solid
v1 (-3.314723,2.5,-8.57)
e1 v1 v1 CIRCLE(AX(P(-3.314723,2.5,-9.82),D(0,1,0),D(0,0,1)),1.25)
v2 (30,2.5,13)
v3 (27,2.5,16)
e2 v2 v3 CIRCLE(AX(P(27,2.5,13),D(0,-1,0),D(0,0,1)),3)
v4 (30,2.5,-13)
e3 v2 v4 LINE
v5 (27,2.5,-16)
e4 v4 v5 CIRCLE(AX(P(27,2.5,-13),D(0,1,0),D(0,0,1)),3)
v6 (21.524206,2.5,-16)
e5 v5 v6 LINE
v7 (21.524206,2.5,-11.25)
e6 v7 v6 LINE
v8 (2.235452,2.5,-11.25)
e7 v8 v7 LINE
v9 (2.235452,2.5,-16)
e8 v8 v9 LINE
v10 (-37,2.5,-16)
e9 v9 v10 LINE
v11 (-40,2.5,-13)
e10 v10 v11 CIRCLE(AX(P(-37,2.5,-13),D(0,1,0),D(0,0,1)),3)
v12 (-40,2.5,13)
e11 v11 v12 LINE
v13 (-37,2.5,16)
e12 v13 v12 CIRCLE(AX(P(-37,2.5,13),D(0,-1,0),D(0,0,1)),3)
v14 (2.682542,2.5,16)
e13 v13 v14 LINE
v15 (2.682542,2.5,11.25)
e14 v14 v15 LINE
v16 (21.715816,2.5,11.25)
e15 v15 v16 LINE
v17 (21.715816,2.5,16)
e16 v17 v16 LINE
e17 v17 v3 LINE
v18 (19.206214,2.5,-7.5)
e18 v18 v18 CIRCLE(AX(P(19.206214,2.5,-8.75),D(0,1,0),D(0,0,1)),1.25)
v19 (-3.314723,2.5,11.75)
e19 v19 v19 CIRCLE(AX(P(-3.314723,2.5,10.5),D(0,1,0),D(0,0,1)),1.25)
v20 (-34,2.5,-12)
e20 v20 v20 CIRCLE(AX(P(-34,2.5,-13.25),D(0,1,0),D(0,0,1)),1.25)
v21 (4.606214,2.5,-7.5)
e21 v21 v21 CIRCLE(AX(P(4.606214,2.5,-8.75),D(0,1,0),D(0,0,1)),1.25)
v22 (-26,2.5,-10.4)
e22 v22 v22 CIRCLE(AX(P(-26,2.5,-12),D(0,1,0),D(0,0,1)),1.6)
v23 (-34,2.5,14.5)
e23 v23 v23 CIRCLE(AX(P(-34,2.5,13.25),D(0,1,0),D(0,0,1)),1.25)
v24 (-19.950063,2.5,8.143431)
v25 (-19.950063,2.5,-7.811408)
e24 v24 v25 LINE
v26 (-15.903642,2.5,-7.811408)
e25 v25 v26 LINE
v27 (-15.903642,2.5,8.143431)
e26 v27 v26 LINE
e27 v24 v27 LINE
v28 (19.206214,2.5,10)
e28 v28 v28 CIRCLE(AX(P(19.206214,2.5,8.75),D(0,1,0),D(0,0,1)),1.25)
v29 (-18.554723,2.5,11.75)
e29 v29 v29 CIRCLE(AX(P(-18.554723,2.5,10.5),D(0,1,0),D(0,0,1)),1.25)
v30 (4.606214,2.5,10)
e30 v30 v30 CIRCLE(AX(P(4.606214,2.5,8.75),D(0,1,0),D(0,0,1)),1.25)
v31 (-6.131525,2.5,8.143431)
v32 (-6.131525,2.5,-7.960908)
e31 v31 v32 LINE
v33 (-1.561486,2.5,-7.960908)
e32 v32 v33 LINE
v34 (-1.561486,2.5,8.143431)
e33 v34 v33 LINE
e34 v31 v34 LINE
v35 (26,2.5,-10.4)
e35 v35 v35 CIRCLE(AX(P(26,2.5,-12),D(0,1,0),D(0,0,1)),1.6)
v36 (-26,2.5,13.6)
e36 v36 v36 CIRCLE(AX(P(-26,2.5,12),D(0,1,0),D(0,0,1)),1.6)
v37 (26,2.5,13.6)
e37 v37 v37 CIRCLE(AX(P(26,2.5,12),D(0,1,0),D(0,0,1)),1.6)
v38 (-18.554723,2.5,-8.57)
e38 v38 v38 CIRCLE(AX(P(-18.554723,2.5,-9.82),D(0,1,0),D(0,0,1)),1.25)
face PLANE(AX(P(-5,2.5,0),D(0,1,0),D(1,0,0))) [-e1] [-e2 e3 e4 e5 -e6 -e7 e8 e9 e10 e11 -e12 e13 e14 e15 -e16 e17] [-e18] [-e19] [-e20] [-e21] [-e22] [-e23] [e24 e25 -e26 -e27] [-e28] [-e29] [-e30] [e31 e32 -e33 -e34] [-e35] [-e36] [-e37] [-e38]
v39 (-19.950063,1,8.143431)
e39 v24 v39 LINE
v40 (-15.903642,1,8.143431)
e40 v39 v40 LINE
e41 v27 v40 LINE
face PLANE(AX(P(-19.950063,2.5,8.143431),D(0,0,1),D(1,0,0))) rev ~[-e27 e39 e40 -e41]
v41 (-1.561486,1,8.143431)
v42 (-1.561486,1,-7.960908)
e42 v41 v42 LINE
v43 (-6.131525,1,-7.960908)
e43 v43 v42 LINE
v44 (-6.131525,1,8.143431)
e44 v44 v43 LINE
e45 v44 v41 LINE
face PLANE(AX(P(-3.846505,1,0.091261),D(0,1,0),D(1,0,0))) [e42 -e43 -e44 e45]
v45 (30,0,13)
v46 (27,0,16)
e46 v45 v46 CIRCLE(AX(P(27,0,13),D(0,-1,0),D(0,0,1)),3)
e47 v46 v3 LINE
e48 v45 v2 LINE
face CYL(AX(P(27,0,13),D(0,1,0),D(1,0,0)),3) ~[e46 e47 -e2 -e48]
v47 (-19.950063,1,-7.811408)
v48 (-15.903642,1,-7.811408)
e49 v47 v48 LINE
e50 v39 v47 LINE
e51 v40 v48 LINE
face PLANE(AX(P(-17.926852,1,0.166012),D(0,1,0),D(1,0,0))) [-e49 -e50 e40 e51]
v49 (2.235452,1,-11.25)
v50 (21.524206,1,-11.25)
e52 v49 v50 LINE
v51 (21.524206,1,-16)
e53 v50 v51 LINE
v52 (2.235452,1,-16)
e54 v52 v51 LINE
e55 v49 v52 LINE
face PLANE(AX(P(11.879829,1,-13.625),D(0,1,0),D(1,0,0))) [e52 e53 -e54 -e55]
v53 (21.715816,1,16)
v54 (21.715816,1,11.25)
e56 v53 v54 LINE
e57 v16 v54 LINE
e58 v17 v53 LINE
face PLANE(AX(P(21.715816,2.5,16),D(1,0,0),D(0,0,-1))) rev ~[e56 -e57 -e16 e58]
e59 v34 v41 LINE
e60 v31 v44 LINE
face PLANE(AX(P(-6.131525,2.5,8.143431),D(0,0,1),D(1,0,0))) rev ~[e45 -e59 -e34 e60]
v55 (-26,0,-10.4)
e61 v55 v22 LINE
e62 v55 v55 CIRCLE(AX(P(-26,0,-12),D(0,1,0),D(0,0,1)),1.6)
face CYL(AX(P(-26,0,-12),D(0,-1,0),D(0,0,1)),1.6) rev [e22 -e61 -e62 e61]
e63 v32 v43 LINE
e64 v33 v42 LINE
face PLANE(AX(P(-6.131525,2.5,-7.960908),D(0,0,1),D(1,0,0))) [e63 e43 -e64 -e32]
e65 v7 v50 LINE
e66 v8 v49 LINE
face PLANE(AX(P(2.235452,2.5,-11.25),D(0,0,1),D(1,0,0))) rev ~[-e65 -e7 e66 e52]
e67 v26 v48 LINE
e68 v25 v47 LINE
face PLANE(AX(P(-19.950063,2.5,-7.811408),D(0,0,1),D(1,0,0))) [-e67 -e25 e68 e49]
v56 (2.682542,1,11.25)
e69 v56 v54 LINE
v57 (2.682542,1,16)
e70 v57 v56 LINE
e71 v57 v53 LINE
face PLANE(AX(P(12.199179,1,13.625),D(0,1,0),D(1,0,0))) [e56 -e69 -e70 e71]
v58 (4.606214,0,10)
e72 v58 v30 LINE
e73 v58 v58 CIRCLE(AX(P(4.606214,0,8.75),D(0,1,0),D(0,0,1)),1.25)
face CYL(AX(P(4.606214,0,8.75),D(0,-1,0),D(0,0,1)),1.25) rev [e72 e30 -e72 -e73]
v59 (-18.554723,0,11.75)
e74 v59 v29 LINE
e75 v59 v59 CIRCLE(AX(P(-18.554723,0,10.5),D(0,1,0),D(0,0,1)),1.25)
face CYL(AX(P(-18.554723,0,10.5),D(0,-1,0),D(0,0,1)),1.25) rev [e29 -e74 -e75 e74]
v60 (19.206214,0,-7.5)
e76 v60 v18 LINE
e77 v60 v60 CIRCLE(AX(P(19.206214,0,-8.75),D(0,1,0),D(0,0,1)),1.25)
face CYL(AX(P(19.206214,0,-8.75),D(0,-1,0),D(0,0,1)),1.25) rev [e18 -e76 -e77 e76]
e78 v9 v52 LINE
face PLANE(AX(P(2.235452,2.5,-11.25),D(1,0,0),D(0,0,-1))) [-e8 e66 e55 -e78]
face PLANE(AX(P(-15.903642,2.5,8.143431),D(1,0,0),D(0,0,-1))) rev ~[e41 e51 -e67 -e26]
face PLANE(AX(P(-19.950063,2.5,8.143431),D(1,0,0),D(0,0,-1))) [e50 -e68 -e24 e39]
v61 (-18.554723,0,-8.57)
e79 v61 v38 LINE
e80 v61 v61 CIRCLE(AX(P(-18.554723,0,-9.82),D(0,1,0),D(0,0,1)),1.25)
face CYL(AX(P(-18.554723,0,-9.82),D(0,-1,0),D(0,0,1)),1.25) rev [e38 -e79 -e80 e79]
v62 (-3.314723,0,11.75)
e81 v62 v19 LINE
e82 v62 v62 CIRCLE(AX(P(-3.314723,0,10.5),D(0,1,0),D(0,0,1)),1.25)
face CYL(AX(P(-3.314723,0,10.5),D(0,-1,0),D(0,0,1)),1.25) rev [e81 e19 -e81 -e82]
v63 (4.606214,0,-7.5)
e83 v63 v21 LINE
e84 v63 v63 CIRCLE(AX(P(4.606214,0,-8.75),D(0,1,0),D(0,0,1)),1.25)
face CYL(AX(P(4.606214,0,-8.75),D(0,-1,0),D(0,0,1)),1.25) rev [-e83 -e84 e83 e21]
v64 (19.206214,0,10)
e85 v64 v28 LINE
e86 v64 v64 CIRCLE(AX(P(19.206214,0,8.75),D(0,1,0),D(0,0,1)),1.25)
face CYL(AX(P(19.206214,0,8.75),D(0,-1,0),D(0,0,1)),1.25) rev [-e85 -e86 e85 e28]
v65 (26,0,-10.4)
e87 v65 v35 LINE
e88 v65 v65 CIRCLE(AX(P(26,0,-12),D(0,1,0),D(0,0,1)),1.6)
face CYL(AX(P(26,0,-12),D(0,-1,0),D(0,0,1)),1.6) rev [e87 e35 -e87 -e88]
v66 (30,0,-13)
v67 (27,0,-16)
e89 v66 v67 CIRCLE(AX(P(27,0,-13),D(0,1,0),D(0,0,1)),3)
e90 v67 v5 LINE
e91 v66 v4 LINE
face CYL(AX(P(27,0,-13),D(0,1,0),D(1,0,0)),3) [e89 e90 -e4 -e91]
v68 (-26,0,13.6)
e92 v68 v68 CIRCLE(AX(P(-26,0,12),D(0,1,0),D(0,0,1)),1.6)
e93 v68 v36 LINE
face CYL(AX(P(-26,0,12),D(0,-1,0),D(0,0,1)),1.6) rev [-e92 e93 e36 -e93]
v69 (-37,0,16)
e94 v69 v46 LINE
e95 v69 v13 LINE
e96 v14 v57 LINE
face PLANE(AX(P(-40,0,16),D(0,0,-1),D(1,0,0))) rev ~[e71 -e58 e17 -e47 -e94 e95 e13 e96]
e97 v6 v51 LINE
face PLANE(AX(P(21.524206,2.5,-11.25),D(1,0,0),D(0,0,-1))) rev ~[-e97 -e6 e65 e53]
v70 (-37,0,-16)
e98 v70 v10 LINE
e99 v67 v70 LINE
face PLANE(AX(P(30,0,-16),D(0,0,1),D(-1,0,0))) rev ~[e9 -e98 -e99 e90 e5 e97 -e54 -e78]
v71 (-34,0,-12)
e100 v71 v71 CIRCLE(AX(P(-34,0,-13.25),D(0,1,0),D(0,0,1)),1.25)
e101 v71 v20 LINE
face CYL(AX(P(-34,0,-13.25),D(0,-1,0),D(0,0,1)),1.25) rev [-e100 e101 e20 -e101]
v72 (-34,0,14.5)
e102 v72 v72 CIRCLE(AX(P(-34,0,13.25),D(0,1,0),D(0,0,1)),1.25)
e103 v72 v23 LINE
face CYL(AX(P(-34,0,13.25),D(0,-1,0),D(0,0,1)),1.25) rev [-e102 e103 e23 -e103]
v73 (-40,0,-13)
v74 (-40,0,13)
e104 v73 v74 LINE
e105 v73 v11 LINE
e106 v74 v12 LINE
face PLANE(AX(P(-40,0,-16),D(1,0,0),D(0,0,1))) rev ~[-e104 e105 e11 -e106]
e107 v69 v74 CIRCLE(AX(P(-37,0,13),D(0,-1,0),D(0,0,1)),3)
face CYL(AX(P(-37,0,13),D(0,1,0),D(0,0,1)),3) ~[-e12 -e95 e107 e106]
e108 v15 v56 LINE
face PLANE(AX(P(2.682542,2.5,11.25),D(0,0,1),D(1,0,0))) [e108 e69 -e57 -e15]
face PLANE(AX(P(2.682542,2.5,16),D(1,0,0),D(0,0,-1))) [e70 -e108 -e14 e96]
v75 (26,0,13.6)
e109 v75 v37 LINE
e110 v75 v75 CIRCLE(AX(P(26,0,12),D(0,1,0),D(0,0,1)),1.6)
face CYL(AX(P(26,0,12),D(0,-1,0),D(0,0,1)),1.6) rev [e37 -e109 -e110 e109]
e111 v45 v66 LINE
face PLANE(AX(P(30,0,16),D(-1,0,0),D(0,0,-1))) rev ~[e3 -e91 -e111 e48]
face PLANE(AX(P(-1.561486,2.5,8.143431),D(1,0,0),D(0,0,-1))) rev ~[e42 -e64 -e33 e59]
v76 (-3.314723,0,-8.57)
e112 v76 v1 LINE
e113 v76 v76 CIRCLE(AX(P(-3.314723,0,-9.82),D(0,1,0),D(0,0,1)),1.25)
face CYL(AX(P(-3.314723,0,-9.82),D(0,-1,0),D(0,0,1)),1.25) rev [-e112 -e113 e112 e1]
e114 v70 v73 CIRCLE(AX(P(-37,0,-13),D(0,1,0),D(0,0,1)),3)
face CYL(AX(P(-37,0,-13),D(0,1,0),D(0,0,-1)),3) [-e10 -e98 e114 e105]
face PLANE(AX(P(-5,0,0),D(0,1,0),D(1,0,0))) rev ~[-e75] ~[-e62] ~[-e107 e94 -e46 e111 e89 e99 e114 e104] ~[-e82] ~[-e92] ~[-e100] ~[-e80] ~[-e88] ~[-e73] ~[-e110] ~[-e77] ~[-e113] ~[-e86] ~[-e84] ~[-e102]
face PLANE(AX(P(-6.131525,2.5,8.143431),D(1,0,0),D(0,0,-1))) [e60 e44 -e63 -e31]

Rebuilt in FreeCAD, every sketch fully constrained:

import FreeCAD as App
import Part
import Sketcher
Q = App.Units.Quantity


def edges_at(feature, points):
    """Names of the edges that pass closest to the given points."""
    edges = feature.Shape.Edges
    near = lambda p: min(range(len(edges)), key=lambda i: edges[i].distToShape(Part.Vertex(*p))[0])
    return sorted({f"Edge{near(p) + 1}" for p in points})


def add_polygon(sketch, points):
    """Adds a closed chain of lines whose ends are joined by coincident constraints."""
    first, n = sketch.GeometryCount, len(points)
    for a, b in zip(points, points[1:] + points[:1]):
        sketch.addGeometry(Part.LineSegment(App.Vector(*a, 0), App.Vector(*b, 0)), False)
    for i in range(n):
        sketch.addConstraint(Sketcher.Constraint("Coincident", first + i, 2, first + (i + 1) % n, 1))

doc = App.newDocument("Part")
body = doc.addObject("PartDesign::Body", "Body")

sketch1 = body.newObject("Sketcher::SketchObject", "Sketch")
sketch1.AttachmentSupport = (doc.getObject("XZ_Plane"), [""])
sketch1.MapMode = "FlatFace"
add_polygon(sketch1, [(30, 16), (30, -16), (-40, -16), (-40, 16)])
sketch1.addGeometry(Part.Circle(App.Vector(-34, 13.2, 0), App.Vector(0, 0, 1), 1.2), False)
sketch1.addGeometry(Part.Circle(App.Vector(-26, 12, 0), App.Vector(0, 0, 1), 1.6), False)
sketch1.addGeometry(Part.Circle(App.Vector(-18.6, 10.5, 0), App.Vector(0, 0, 1), 1.2), False)
sketch1.addGeometry(Part.Circle(App.Vector(-3.3, 10.5, 0), App.Vector(0, 0, 1), 1.2), False)
sketch1.addGeometry(Part.Circle(App.Vector(4.6, 8.8, 0), App.Vector(0, 0, 1), 1.2), False)
sketch1.addGeometry(Part.Circle(App.Vector(26, 12, 0), App.Vector(0, 0, 1), 1.6), False)
sketch1.addGeometry(Part.Circle(App.Vector(19.2, 8.8, 0), App.Vector(0, 0, 1), 1.2), False)
sketch1.addGeometry(Part.Circle(App.Vector(-34, -13.2, 0), App.Vector(0, 0, 1), 1.2), False)
sketch1.addGeometry(Part.Circle(App.Vector(-26, -12, 0), App.Vector(0, 0, 1), 1.6), False)
sketch1.addGeometry(Part.Circle(App.Vector(-18.6, -9.8, 0), App.Vector(0, 0, 1), 1.2), False)
sketch1.addGeometry(Part.Circle(App.Vector(-3.3, -9.8, 0), App.Vector(0, 0, 1), 1.2), False)
sketch1.addGeometry(Part.Circle(App.Vector(4.6, -8.8, 0), App.Vector(0, 0, 1), 1.2), False)
sketch1.addGeometry(Part.Circle(App.Vector(19.2, -8.8, 0), App.Vector(0, 0, 1), 1.2), False)
sketch1.addGeometry(Part.Circle(App.Vector(26, -12, 0), App.Vector(0, 0, 1), 1.6), False)
sketch1.addConstraint(Sketcher.Constraint("Vertical", 0))
sketch1.addConstraint(Sketcher.Constraint("Horizontal", 1))
sketch1.addConstraint(Sketcher.Constraint("Vertical", 2))
sketch1.addConstraint(Sketcher.Constraint("Horizontal", 3))
sketch1.addConstraint(Sketcher.Constraint("Equal", 4, 6))
sketch1.addConstraint(Sketcher.Constraint("Equal", 6, 7))
sketch1.addConstraint(Sketcher.Constraint("Equal", 7, 8))
sketch1.addConstraint(Sketcher.Constraint("Equal", 5, 9))
sketch1.addConstraint(Sketcher.Constraint("Equal", 8, 10))
sketch1.addConstraint(Sketcher.Constraint("Equal", 10, 11))
sketch1.addConstraint(Sketcher.Constraint("Equal", 9, 12))
sketch1.addConstraint(Sketcher.Constraint("Equal", 11, 13))
sketch1.addConstraint(Sketcher.Constraint("Equal", 13, 14))
sketch1.addConstraint(Sketcher.Constraint("Equal", 14, 15))
sketch1.addConstraint(Sketcher.Constraint("Equal", 15, 16))
sketch1.addConstraint(Sketcher.Constraint("Equal", 12, 17))
sketch1.addConstraint(Sketcher.Constraint("Symmetric", 9, 3, 12, 3, -1, 1))
sketch1.addConstraint(Sketcher.Constraint("Symmetric", 5, 3, 17, 3, -1, 1))
sketch1.addConstraint(Sketcher.Constraint("Symmetric", 5, 3, 9, 3, -2))
sketch1.addConstraint(Sketcher.Constraint("Symmetric", 4, 3, 11, 3, -1))
sketch1.addConstraint(Sketcher.Constraint("Symmetric", 8, 3, 15, 3, -1))
sketch1.addConstraint(Sketcher.Constraint("Symmetric", 10, 3, 16, 3, -1))
sketch1.addConstraint(Sketcher.Constraint("Horizontal", 6, 3, 7, 3))
sketch1.addConstraint(Sketcher.Constraint("Horizontal", 8, 3, 10, 3))
sketch1.addConstraint(Sketcher.Constraint("Horizontal", 13, 3, 14, 3))
sketch1.addConstraint(Sketcher.Constraint("Vertical", 6, 3, 13, 3))
sketch1.addConstraint(Sketcher.Constraint("Vertical", 7, 3, 14, 3))
sketch1.addConstraint(Sketcher.Constraint("Diameter", 4, Q("2.5 mm")))
sketch1.addConstraint(Sketcher.Constraint("Diameter", 5, Q("3.2 mm")))
sketch1.addConstraint(Sketcher.Constraint("DistanceX", 1, 2, 1, 1, Q("70 mm")))
sketch1.addConstraint(Sketcher.Constraint("DistanceY", 0, 2, 0, 1, Q("32 mm")))
sketch1.addConstraint(Sketcher.Constraint("DistanceX", 4, 3, -1, 1, Q("34 mm")))
sketch1.addConstraint(Sketcher.Constraint("DistanceX", 5, 3, -1, 1, Q("26 mm")))
sketch1.addConstraint(Sketcher.Constraint("DistanceY", -1, 1, 5, 3, Q("12 mm")))
sketch1.addConstraint(Sketcher.Constraint("DistanceX", -1, 1, 0, 2, Q("30 mm")))
sketch1.addConstraint(Sketcher.Constraint("DistanceY", 0, 2, -1, 1, Q("16 mm")))
sketch1.addConstraint(Sketcher.Constraint("DistanceY", 11, 3, 8, 3, Q("22 mm")))
sketch1.addConstraint(Sketcher.Constraint("DistanceY", -1, 1, 6, 3, Q("10.5 mm")))
sketch1.addConstraint(Sketcher.Constraint("DistanceY", 8, 3, 4, 3, Q("4.5 mm")))
sketch1.addConstraint(Sketcher.Constraint("DistanceX", 8, 3, 10, 3, Q("14.6 mm")))
sketch1.addConstraint(Sketcher.Constraint("DistanceY", 13, 3, -1, 1, Q("9.82 mm")))
sketch1.addConstraint(Sketcher.Constraint("DistanceX", 6, 3, 7, 3, Q("15.24 mm")))
sketch1.addConstraint(Sketcher.Constraint("DistanceX", 6, 3, -1, 1, Q("18.554723 mm")))
sketch1.addConstraint(Sketcher.Constraint("DistanceX", -1, 1, 8, 3, Q("4.606214 mm")))
pad1 = body.newObject("PartDesign::Pad", "Pad")
pad1.Profile = sketch1
pad1.Length = 2.5
pad1.Reversed = True

sketch2 = body.newObject("Sketcher::SketchObject", "Sketch001")
sketch2.AttachmentSupport = (doc.getObject("XZ_Plane"), [""])
sketch2.MapMode = "FlatFace"
sketch2.AttachmentOffset = App.Placement(App.Vector(0, 0, -2.5), App.Rotation())
add_polygon(sketch2, [(-20, -7.8), (-20, 8.1), (-15.9, 8.1), (-15.9, -7.8)])
add_polygon(sketch2, [(-6.1, -8), (-6.1, 8.1), (-1.6, 8.1), (-1.6, -8)])
add_polygon(sketch2, [(2.2, -16), (2.2, -11.2), (21.5, -11.2), (21.5, -16)])
add_polygon(sketch2, [(2.7, 11.2), (2.7, 16), (21.7, 16), (21.7, 11.2)])
sketch2.addConstraint(Sketcher.Constraint("Vertical", 0))
sketch2.addConstraint(Sketcher.Constraint("Horizontal", 1))
sketch2.addConstraint(Sketcher.Constraint("Vertical", 2))
sketch2.addConstraint(Sketcher.Constraint("Horizontal", 3))
sketch2.addConstraint(Sketcher.Constraint("Vertical", 4))
sketch2.addConstraint(Sketcher.Constraint("Horizontal", 5))
sketch2.addConstraint(Sketcher.Constraint("Vertical", 6))
sketch2.addConstraint(Sketcher.Constraint("Horizontal", 7))
sketch2.addConstraint(Sketcher.Constraint("Vertical", 8))
sketch2.addConstraint(Sketcher.Constraint("Horizontal", 9))
sketch2.addConstraint(Sketcher.Constraint("Vertical", 10))
sketch2.addConstraint(Sketcher.Constraint("Horizontal", 11))
sketch2.addConstraint(Sketcher.Constraint("Vertical", 12))
sketch2.addConstraint(Sketcher.Constraint("Horizontal", 13))
sketch2.addConstraint(Sketcher.Constraint("Vertical", 14))
sketch2.addConstraint(Sketcher.Constraint("Horizontal", 15))
sketch2.addConstraint(Sketcher.Constraint("Horizontal", 1, 2, 4, 2))
sketch2.addConstraint(Sketcher.Constraint("Equal", 10, 12))
sketch2.addConstraint(Sketcher.Constraint("DistanceY", 10, 2, -1, 1, Q("16 mm")))
sketch2.addConstraint(Sketcher.Constraint("DistanceY", -1, 1, 12, 2, Q("16 mm")))
sketch2.addConstraint(Sketcher.Constraint("DistanceY", 8, 1, 8, 2, Q("4.75 mm")))
sketch2.addConstraint(Sketcher.Constraint("DistanceX", 1, 1, 1, 2, Q("4.046421 mm")))
sketch2.addConstraint(Sketcher.Constraint("DistanceX", 5, 1, 5, 2, Q("4.570039 mm")))
sketch2.addConstraint(Sketcher.Constraint("DistanceY", 0, 1, 0, 2, Q("15.954839 mm")))
sketch2.addConstraint(Sketcher.Constraint("DistanceY", 4, 1, 4, 2, Q("16.104339 mm")))
sketch2.addConstraint(Sketcher.Constraint("DistanceX", 5, 2, 13, 2, Q("23.277302 mm")))
sketch2.addConstraint(Sketcher.Constraint("DistanceX", 9, 1, 9, 2, Q("19.288754 mm")))
sketch2.addConstraint(Sketcher.Constraint("DistanceX", 13, 1, 13, 2, Q("19.033274 mm")))
sketch2.addConstraint(Sketcher.Constraint("DistanceY", -1, 1, 0, 2, Q("8.143431 mm")))
sketch2.addConstraint(Sketcher.Constraint("DistanceX", 1, 2, -1, 1, Q("15.903642 mm")))
sketch2.addConstraint(Sketcher.Constraint("DistanceX", -1, 1, 8, 2, Q("2.235452 mm")))
sketch2.addConstraint(Sketcher.Constraint("DistanceX", -1, 1, 12, 2, Q("2.682542 mm")))
pocket1 = body.newObject("PartDesign::Pocket", "Pocket")
pocket1.Profile = sketch2
pocket1.Length = 1.5
pocket1.Reversed = True
doc.recompute()

fillet = body.newObject("PartDesign::Fillet", "Fillet")
fillet.Base = (pocket1, edges_at(pocket1, [
    (30, 1.25, 16),
    (-40, 1.25, 16),
    (-40, 1.25, -16),
    (30, 1.25, -16),
]))
fillet.Radius = 3

doc.recompute()
